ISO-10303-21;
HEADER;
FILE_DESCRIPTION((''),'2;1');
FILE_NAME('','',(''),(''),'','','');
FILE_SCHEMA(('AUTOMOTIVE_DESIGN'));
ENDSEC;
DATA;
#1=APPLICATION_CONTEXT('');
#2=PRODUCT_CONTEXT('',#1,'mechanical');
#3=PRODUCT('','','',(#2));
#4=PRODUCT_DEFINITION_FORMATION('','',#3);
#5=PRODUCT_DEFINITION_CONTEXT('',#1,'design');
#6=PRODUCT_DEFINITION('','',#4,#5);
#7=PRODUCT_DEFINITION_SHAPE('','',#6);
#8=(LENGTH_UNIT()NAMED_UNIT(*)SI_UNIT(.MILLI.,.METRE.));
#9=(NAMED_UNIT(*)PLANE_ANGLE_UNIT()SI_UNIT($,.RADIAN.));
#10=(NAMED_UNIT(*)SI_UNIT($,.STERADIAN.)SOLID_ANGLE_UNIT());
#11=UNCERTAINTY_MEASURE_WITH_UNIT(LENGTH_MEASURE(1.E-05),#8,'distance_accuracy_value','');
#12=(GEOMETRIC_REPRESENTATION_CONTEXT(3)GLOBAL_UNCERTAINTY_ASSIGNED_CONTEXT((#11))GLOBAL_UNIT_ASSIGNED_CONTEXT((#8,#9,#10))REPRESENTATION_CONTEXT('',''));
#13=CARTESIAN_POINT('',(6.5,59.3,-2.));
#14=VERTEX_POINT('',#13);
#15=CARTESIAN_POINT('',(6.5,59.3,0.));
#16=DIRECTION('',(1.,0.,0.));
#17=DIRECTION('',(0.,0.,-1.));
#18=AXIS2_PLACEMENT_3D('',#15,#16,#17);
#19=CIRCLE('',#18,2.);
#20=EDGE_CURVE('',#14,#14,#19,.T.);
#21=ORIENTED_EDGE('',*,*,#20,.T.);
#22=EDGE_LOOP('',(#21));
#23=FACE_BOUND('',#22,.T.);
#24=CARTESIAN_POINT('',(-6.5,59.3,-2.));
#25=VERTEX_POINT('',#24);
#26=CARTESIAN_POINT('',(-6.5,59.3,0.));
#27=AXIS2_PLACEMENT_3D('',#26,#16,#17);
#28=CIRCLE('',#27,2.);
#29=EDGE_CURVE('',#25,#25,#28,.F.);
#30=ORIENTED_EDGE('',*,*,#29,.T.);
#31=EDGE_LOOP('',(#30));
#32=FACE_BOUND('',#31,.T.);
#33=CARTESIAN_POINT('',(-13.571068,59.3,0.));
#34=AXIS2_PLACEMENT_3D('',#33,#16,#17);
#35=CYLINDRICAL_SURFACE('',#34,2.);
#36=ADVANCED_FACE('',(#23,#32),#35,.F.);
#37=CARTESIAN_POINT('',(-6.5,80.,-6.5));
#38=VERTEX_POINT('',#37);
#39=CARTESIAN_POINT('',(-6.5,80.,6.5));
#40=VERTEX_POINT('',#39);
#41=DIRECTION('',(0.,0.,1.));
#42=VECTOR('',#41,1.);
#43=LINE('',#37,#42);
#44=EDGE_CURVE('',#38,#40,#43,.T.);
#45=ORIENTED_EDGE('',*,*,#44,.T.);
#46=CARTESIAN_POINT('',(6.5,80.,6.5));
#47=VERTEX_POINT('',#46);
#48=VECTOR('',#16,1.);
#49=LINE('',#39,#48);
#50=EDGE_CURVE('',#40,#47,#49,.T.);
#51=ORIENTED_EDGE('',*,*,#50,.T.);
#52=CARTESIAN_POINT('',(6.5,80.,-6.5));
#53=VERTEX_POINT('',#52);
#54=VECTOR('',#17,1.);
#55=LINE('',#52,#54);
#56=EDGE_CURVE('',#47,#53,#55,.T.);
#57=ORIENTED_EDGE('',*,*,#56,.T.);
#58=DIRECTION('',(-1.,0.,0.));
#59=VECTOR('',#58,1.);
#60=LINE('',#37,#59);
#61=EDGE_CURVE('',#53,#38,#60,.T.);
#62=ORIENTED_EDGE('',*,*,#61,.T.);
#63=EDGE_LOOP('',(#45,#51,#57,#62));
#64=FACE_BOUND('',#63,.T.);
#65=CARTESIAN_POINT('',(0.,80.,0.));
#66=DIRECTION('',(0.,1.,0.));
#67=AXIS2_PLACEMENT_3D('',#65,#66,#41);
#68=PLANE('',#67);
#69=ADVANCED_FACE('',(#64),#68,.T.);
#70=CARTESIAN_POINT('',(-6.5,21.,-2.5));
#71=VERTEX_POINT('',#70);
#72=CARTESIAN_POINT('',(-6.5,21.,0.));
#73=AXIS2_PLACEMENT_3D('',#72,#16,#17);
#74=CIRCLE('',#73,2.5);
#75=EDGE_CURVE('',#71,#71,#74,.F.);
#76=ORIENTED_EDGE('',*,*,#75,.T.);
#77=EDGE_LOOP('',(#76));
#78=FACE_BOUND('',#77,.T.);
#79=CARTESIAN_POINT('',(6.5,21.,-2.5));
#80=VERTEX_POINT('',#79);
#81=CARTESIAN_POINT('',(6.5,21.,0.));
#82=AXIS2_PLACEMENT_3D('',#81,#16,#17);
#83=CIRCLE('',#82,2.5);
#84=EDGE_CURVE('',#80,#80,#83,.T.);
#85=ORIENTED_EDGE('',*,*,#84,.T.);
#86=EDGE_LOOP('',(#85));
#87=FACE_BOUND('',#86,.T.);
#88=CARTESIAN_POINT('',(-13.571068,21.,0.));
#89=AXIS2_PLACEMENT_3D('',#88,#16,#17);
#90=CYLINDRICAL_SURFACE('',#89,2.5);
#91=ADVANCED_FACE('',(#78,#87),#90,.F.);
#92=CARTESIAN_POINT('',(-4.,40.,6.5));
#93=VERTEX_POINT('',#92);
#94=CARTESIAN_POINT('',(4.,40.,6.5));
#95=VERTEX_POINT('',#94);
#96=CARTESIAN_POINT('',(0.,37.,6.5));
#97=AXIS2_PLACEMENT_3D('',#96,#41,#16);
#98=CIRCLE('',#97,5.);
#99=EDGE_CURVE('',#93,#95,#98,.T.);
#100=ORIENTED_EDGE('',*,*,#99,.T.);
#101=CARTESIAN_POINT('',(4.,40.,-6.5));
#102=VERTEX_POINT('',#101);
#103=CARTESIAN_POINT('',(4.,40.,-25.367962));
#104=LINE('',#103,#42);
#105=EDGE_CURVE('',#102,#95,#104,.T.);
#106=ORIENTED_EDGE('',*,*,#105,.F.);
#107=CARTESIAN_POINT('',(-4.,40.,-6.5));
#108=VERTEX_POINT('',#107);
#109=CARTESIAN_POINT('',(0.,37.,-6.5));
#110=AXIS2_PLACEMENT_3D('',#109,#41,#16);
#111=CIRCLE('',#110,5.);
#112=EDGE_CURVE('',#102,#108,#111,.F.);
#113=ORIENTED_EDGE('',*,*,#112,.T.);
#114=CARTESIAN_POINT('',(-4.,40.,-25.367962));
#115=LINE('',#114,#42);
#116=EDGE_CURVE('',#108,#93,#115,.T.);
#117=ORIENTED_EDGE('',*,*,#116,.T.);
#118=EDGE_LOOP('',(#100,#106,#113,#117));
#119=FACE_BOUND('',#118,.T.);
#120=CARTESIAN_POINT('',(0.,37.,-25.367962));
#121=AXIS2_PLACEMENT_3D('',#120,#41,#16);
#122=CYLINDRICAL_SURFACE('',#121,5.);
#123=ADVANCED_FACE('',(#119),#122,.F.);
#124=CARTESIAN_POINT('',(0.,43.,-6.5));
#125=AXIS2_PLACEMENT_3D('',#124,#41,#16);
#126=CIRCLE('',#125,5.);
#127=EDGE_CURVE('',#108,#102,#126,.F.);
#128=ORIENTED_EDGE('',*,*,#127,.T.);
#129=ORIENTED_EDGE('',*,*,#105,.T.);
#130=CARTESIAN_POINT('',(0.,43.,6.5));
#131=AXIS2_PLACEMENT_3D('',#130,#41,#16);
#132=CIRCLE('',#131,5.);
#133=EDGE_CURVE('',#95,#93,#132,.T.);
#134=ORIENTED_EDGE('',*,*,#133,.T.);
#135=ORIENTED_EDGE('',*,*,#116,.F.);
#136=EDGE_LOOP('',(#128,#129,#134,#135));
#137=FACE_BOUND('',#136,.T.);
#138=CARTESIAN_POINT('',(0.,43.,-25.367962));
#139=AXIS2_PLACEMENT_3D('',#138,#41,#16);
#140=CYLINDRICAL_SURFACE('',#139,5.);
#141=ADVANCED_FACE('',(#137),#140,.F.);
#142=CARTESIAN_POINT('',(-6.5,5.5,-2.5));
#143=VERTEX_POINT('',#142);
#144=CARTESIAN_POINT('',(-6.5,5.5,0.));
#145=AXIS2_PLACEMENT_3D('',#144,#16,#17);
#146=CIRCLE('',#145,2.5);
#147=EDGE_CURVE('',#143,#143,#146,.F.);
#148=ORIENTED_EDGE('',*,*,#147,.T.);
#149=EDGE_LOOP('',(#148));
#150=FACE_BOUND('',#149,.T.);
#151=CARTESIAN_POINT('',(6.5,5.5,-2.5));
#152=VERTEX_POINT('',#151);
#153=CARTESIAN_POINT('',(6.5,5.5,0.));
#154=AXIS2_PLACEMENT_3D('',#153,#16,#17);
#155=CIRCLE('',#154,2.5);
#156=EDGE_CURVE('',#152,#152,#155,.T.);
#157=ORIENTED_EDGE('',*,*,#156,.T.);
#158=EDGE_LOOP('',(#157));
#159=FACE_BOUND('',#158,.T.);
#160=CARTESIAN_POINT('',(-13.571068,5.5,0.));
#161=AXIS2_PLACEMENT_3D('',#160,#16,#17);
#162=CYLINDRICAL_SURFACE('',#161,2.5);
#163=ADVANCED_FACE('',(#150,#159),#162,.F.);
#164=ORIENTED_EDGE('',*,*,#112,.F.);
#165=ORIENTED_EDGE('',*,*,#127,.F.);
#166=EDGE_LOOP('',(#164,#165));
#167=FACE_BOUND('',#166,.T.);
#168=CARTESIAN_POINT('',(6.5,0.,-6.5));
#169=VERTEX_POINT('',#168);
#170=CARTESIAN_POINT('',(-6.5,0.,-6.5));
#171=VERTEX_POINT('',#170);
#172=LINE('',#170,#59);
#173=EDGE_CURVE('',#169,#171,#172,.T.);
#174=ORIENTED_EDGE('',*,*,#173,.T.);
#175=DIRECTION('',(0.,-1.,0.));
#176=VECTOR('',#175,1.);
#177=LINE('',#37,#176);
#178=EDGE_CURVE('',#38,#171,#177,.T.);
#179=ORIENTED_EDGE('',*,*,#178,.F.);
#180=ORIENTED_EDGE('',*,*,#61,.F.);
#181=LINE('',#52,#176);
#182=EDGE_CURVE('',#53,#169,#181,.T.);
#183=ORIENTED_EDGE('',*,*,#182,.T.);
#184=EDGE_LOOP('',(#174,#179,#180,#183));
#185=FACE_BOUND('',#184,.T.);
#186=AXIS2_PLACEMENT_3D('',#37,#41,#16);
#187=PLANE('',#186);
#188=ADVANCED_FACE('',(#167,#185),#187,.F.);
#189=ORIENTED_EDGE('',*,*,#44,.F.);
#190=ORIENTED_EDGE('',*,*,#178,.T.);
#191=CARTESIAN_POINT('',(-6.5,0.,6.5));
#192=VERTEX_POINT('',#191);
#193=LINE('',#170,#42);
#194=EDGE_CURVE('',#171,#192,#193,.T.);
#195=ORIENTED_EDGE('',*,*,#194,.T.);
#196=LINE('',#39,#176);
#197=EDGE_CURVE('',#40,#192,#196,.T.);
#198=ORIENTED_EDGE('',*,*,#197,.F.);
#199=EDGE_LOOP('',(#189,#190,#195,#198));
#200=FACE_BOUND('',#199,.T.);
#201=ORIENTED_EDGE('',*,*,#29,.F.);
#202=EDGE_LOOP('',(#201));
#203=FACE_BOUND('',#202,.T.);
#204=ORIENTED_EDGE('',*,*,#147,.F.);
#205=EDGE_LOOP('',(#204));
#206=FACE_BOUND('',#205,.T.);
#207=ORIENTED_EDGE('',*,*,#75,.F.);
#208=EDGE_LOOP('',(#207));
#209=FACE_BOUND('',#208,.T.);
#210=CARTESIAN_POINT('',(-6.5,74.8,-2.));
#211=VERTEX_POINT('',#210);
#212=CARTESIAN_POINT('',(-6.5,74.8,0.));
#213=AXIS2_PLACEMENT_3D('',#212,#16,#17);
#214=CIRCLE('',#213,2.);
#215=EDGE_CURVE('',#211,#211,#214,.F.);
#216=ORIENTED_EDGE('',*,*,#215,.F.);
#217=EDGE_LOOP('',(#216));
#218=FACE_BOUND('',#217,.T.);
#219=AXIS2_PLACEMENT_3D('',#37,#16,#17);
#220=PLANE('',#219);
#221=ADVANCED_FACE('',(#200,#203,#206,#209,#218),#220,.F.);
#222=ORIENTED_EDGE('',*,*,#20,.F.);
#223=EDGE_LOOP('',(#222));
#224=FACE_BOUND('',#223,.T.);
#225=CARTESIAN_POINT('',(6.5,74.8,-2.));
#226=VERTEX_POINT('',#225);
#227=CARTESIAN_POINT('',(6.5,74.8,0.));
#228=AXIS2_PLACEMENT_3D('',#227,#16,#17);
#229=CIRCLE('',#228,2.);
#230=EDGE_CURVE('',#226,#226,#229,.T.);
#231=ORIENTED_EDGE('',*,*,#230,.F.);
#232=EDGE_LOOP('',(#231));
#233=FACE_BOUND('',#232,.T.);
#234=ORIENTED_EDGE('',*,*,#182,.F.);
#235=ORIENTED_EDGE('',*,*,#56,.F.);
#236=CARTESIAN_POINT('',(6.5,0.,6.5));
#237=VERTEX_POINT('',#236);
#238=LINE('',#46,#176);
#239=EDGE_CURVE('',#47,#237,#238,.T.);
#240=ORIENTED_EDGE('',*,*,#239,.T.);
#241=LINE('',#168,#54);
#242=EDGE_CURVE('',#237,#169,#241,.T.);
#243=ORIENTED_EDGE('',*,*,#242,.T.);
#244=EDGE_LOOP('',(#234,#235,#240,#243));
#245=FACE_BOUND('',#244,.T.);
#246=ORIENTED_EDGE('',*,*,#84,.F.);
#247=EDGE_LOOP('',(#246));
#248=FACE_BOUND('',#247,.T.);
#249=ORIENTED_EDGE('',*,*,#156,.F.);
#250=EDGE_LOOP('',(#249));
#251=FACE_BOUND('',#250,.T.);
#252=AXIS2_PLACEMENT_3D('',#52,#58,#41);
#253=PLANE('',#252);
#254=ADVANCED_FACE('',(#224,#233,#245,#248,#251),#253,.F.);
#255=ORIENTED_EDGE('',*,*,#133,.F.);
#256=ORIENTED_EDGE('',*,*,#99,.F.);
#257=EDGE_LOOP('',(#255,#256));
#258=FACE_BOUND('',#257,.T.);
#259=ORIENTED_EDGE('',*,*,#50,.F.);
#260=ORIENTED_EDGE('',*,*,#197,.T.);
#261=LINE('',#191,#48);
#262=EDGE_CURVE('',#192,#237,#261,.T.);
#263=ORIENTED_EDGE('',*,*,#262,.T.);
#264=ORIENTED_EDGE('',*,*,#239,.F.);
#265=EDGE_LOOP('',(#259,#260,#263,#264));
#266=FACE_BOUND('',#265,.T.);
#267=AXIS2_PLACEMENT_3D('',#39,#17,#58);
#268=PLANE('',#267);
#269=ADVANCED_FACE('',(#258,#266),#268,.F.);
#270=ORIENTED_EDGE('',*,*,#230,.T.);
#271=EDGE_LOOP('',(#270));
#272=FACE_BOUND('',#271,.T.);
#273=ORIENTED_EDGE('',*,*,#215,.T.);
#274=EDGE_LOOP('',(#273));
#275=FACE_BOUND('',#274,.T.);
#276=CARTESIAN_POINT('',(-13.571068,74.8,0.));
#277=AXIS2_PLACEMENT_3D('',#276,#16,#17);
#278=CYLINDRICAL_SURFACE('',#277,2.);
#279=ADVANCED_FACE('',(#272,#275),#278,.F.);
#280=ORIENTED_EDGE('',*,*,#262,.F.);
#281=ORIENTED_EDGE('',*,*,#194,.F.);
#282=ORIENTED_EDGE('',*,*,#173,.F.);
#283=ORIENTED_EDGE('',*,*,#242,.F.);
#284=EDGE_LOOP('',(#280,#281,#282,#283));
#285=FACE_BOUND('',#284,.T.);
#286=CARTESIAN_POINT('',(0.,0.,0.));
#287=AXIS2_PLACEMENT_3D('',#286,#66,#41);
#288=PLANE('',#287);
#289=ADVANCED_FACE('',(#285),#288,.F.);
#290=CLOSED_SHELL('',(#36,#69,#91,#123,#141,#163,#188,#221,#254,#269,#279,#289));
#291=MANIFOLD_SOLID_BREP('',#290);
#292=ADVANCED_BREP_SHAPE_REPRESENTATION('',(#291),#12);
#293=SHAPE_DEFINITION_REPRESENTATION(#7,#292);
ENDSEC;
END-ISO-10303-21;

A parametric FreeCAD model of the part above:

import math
import FreeCAD as App
import Part
import Sketcher

doc = App.newDocument("Part")
body = doc.addObject("PartDesign::Body", "Body")

# Sketch on XZ plane
sketch1 = body.newObject("Sketcher::SketchObject", "Sketch")
sketch1.AttachmentSupport = (doc.getObject("XZ_Plane"), [""])
sketch1.MapMode = "FlatFace"
sketch1.addGeometry([
    Part.LineSegment(App.Vector(-6, -6, 0), App.Vector(-6, 6, 0)),
    Part.LineSegment(App.Vector(-6, 6, 0), App.Vector(6, 6, 0)),
    Part.LineSegment(App.Vector(6, 6, 0), App.Vector(6, -6, 0)),
    Part.LineSegment(App.Vector(6, -6, 0), App.Vector(-6, -6, 0)),
], False)
sketch1.addConstraint([
    Sketcher.Constraint("Coincident", 0, 2, 1, 1),
    Sketcher.Constraint("Coincident", 1, 2, 2, 1),
    Sketcher.Constraint("Coincident", 2, 2, 3, 1),
    Sketcher.Constraint("Coincident", 3, 2, 0, 1),
    Sketcher.Constraint("Vertical", 0),
    Sketcher.Constraint("Horizontal", 1),
    Sketcher.Constraint("Vertical", 2),
    Sketcher.Constraint("Horizontal", 3),
    Sketcher.Constraint("Symmetric", 0, 2, 2, 2, -1, 1),
    Sketcher.Constraint("Equal", 3, 0),
    Sketcher.Constraint("DistanceX", 1, 1, 1, 2, 13.0),
])
pad1 = body.newObject("PartDesign::Pad", "Pad")
pad1.Profile = sketch1
pad1.Length = 80
pad1.Reversed = True

# Sketch on XY plane
sketch2 = body.newObject("Sketcher::SketchObject", "Sketch001")
sketch2.AttachmentSupport = (doc.getObject("XY_Plane"), [""])
sketch2.MapMode = "FlatFace"
sketch2.AttachmentOffset = App.Placement(App.Vector(0, 0, 6.5), App.Rotation())
sketch2.addGeometry([
    Part.ArcOfCircle(Part.Circle(App.Vector(0, 37, 0), App.Vector(0, 0, 1), 5), math.radians(143), math.radians(397)),
    Part.ArcOfCircle(Part.Circle(App.Vector(0, 43, 0), App.Vector(0, 0, 1), 5), math.radians(-37), math.radians(217)),
], False)
sketch2.addConstraint([
    Sketcher.Constraint("Coincident", 0, 1, 1, 2),
    Sketcher.Constraint("Coincident", 1, 1, 0, 2),
    Sketcher.Constraint("Equal", 0, 1),
    Sketcher.Constraint("Symmetric", 0, 1, 1, 1, -2),
    Sketcher.Constraint("Radius", 0, 5.0),
    Sketcher.Constraint("DistanceY", -1, 1, 0, 3, 37.0),
    Sketcher.Constraint("DistanceY", -1, 1, 1, 3, 43.0),
])
pocket1 = body.newObject("PartDesign::Pocket", "Pocket")
pocket1.Profile = sketch2
pocket1.Length = 13

# Sketch on YZ plane
sketch3 = body.newObject("Sketcher::SketchObject", "Sketch002")
sketch3.AttachmentSupport = (doc.getObject("YZ_Plane"), [""])
sketch3.MapMode = "FlatFace"
sketch3.AttachmentOffset = App.Placement(App.Vector(0, 0, 6.5), App.Rotation())
sketch3.addGeometry([
    Part.Circle(App.Vector(74.8, 0, 0), App.Vector(0, 0, 1), 2),
    Part.Circle(App.Vector(59.3, 0, 0), App.Vector(0, 0, 1), 2),
    Part.Circle(App.Vector(21, 0, 0), App.Vector(0, 0, 1), 2.5),
    Part.Circle(App.Vector(5.5, 0, 0), App.Vector(0, 0, 1), 2.5),
], False)
sketch3.addConstraint([
    Sketcher.Constraint("Equal", 0, 1),
    Sketcher.Constraint("Equal", 2, 3),
    Sketcher.Constraint("PointOnObject", 0, 3, -1),
    Sketcher.Constraint("PointOnObject", 1, 3, -1),
    Sketcher.Constraint("PointOnObject", 2, 3, -1),
    Sketcher.Constraint("PointOnObject", 3, 3, -1),
    Sketcher.Constraint("Diameter", 0, 4.0),
    Sketcher.Constraint("Diameter", 2, 5.0),
    Sketcher.Constraint("DistanceX", -1, 1, 2, 3, 21.0),
    Sketcher.Constraint("DistanceX", -1, 1, 0, 3, 74.8),
    Sketcher.Constraint("DistanceX", -1, 1, 1, 3, 59.3),
    Sketcher.Constraint("DistanceX", -1, 1, 3, 3, 5.5),
])
pocket2 = body.newObject("PartDesign::Pocket", "Pocket001")
pocket2.Profile = sketch3
pocket2.Length = 13

doc.recompute()
